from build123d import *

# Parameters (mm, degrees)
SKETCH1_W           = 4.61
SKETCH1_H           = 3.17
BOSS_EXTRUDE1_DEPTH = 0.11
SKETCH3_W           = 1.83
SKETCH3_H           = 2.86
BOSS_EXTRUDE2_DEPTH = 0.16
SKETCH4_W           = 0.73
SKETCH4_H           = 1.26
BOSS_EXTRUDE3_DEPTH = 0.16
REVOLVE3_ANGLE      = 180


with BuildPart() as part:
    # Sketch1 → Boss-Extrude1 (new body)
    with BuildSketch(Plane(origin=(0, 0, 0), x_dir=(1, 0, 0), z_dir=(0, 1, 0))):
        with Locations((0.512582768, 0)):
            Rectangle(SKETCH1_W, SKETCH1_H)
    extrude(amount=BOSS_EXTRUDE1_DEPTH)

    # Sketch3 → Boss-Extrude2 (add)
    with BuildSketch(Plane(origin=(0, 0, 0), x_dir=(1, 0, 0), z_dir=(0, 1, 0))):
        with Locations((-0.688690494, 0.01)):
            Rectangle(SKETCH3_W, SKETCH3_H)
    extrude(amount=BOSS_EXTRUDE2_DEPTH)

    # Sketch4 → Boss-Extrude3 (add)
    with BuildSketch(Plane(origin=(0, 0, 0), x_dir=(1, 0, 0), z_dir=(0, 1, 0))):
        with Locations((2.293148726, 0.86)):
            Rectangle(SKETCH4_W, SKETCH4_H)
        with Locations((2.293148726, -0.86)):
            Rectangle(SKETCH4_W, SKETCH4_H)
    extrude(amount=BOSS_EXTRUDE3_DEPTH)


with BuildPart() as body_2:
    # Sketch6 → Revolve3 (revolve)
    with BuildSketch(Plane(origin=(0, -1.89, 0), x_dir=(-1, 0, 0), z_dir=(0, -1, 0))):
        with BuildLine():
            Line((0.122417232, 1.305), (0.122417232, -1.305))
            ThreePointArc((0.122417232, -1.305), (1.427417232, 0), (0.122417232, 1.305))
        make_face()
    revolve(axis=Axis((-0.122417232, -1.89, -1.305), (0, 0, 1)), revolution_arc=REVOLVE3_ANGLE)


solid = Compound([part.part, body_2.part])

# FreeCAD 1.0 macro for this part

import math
import FreeCAD as App
import Part
import Sketcher
Q = App.Units.Quantity

doc = App.newDocument("Part")
body = doc.addObject("PartDesign::Body", "Body")

# Sketch on XZ plane
sketch1 = body.newObject("Sketcher::SketchObject", "Sketch")
sketch1.AttachmentSupport = (doc.getObject("XZ_Plane"), [""])
sketch1.MapMode = "FlatFace"
sketch1.addGeometry(Part.LineSegment(App.Vector(-1.792417, -1.585, 0), App.Vector(-1.792417, 1.585, 0)), False)
sketch1.addGeometry(Part.LineSegment(App.Vector(-1.792417, 1.585, 0), App.Vector(2.817583, 1.585, 0)), False)
sketch1.addGeometry(Part.LineSegment(App.Vector(2.817583, 1.585, 0), App.Vector(2.817583, -1.585, 0)), False)
sketch1.addGeometry(Part.LineSegment(App.Vector(2.817583, -1.585, 0), App.Vector(-1.792417, -1.585, 0)), False)
sketch1.addConstraint(Sketcher.Constraint("Coincident", 0, 2, 1, 1))
sketch1.addConstraint(Sketcher.Constraint("Coincident", 1, 2, 2, 1))
sketch1.addConstraint(Sketcher.Constraint("Coincident", 2, 2, 3, 1))
sketch1.addConstraint(Sketcher.Constraint("Coincident", 3, 2, 0, 1))
sketch1.addConstraint(Sketcher.Constraint("Vertical", 0))
sketch1.addConstraint(Sketcher.Constraint("Horizontal", 1))
sketch1.addConstraint(Sketcher.Constraint("Vertical", 2))
sketch1.addConstraint(Sketcher.Constraint("Horizontal", 3))
sketch1.addConstraint(Sketcher.Constraint("DistanceX", 1, 1, 1, 2, Q("4.61 mm")))
sketch1.addConstraint(Sketcher.Constraint("DistanceY", 0, 1, 0, 2, Q("3.17 mm")))
sketch1.addConstraint(Sketcher.Constraint("DistanceY", -1, 1, 0, 2, Q("1.585 mm")))
sketch1.addConstraint(Sketcher.Constraint("DistanceX", 0, 2, -1, 1, Q("1.792417 mm")))
pad1 = body.newObject("PartDesign::Pad", "Pad")
pad1.Profile = sketch1
pad1.Length = 0.11
pad1.Reversed = True

# Sketch on XZ plane
sketch2 = body.newObject("Sketcher::SketchObject", "Sketch001")
sketch2.AttachmentSupport = (doc.getObject("XZ_Plane"), [""])
sketch2.MapMode = "FlatFace"
sketch2.addGeometry(Part.LineSegment(App.Vector(-1.60369, -1.44, 0), App.Vector(-1.60369, 1.42, 0)), False)
sketch2.addGeometry(Part.LineSegment(App.Vector(-1.60369, 1.42, 0), App.Vector(0.22631, 1.42, 0)), False)
sketch2.addGeometry(Part.LineSegment(App.Vector(0.22631, 1.42, 0), App.Vector(0.22631, -1.44, 0)), False)
sketch2.addGeometry(Part.LineSegment(App.Vector(0.22631, -1.44, 0), App.Vector(-1.60369, -1.44, 0)), False)
sketch2.addConstraint(Sketcher.Constraint("Coincident", 0, 2, 1, 1))
sketch2.addConstraint(Sketcher.Constraint("Coincident", 1, 2, 2, 1))
sketch2.addConstraint(Sketcher.Constraint("Coincident", 2, 2, 3, 1))
sketch2.addConstraint(Sketcher.Constraint("Coincident", 3, 2, 0, 1))
sketch2.addConstraint(Sketcher.Constraint("Vertical", 0))
sketch2.addConstraint(Sketcher.Constraint("Horizontal", 1))
sketch2.addConstraint(Sketcher.Constraint("Vertical", 2))
sketch2.addConstraint(Sketcher.Constraint("Horizontal", 3))
sketch2.addConstraint(Sketcher.Constraint("DistanceX", 1, 1, 1, 2, Q("1.83 mm")))
sketch2.addConstraint(Sketcher.Constraint("DistanceY", 0, 1, 0, 2, Q("2.86 mm")))
sketch2.addConstraint(Sketcher.Constraint("DistanceY", -1, 1, 0, 2, Q("1.42 mm")))
sketch2.addConstraint(Sketcher.Constraint("DistanceX", 0, 2, -1, 1, Q("1.60369 mm")))
pad2 = body.newObject("PartDesign::Pad", "Pad001")
pad2.Profile = sketch2
pad2.Length = 0.16
pad2.Reversed = True

# Sketch on XZ plane
sketch3 = body.newObject("Sketcher::SketchObject", "Sketch002")
sketch3.AttachmentSupport = (doc.getObject("XZ_Plane"), [""])
sketch3.MapMode = "FlatFace"
sketch3.addGeometry(Part.LineSegment(App.Vector(1.928149, -1.49, 0), App.Vector(1.928149, -0.23, 0)), False)
sketch3.addGeometry(Part.LineSegment(App.Vector(1.928149, -0.23, 0), App.Vector(2.658149, -0.23, 0)), False)
sketch3.addGeometry(Part.LineSegment(App.Vector(2.658149, -0.23, 0), App.Vector(2.658149, -1.49, 0)), False)
sketch3.addGeometry(Part.LineSegment(App.Vector(2.658149, -1.49, 0), App.Vector(1.928149, -1.49, 0)), False)
sketch3.addGeometry(Part.LineSegment(App.Vector(1.928149, 0.23, 0), App.Vector(1.928149, 1.49, 0)), False)
sketch3.addGeometry(Part.LineSegment(App.Vector(1.928149, 1.49, 0), App.Vector(2.658149, 1.49, 0)), False)
sketch3.addGeometry(Part.LineSegment(App.Vector(2.658149, 1.49, 0), App.Vector(2.658149, 0.23, 0)), False)
sketch3.addGeometry(Part.LineSegment(App.Vector(2.658149, 0.23, 0), App.Vector(1.928149, 0.23, 0)), False)
sketch3.addConstraint(Sketcher.Constraint("Coincident", 0, 2, 1, 1))
sketch3.addConstraint(Sketcher.Constraint("Coincident", 1, 2, 2, 1))
sketch3.addConstraint(Sketcher.Constraint("Coincident", 2, 2, 3, 1))
sketch3.addConstraint(Sketcher.Constraint("Coincident", 3, 2, 0, 1))
sketch3.addConstraint(Sketcher.Constraint("Coincident", 4, 2, 5, 1))
sketch3.addConstraint(Sketcher.Constraint("Coincident", 5, 2, 6, 1))
sketch3.addConstraint(Sketcher.Constraint("Coincident", 6, 2, 7, 1))
sketch3.addConstraint(Sketcher.Constraint("Coincident", 7, 2, 4, 1))
sketch3.addConstraint(Sketcher.Constraint("Vertical", 0))
sketch3.addConstraint(Sketcher.Constraint("Horizontal", 1))
sketch3.addConstraint(Sketcher.Constraint("Vertical", 2))
sketch3.addConstraint(Sketcher.Constraint("Horizontal", 3))
sketch3.addConstraint(Sketcher.Constraint("Vertical", 4))
sketch3.addConstraint(Sketcher.Constraint("Horizontal", 5))
sketch3.addConstraint(Sketcher.Constraint("Vertical", 6))
sketch3.addConstraint(Sketcher.Constraint("Horizontal", 7))
sketch3.addConstraint(Sketcher.Constraint("Symmetric", 3, 2, 4, 2, -1))
sketch3.addConstraint(Sketcher.Constraint("Symmetric", 1, 2, 6, 2, -1))
sketch3.addConstraint(Sketcher.Constraint("DistanceX", 1, 1, 1, 2, Q("0.73 mm")))
sketch3.addConstraint(Sketcher.Constraint("DistanceY", 0, 1, 0, 2, Q("1.26 mm")))
sketch3.addConstraint(Sketcher.Constraint("DistanceY", 0, 2, -1, 1, Q("0.23 mm")))
sketch3.addConstraint(Sketcher.Constraint("DistanceX", -1, 1, 0, 2, Q("1.928149 mm")))
pad3 = body.newObject("PartDesign::Pad", "Pad002")
pad3.Profile = sketch3
pad3.Length = 0.16
pad3.Reversed = True
body2 = doc.addObject("PartDesign::Body", "Body001")

# Sketch on XZ plane
sketch4 = body2.newObject("Sketcher::SketchObject", "Sketch003")
sketch4.AttachmentSupport = (doc.getObject("XZ_Plane001"), [""])
sketch4.MapMode = "FlatFace"
sketch4.AttachmentOffset = App.Placement(App.Vector(0, 0, 1.89), App.Rotation())
sketch4.addGeometry(Part.LineSegment(App.Vector(-0.122417, -1.305, 0), App.Vector(-0.122417, 1.305, 0)), False)
sketch4.addGeometry(Part.ArcOfCircle(Part.Circle(App.Vector(-0.122417, 0, 0), App.Vector(0, 0, 1), 1.305), math.radians(90), math.radians(270)), False)
sketch4.addGeometry(Part.LineSegment(App.Vector(-0.122417, -1.305, 0), App.Vector(-0.122417, 1.305, 0)), True)  # axis
sketch4.addConstraint(Sketcher.Constraint("Coincident", 0, 1, 1, 2))
sketch4.addConstraint(Sketcher.Constraint("Coincident", 1, 1, 0, 2))
sketch4.addConstraint(Sketcher.Constraint("Vertical", 0))
sketch4.addConstraint(Sketcher.Constraint("Vertical", 2))
sketch4.addConstraint(Sketcher.Constraint("Coincident", 2, 1, 0, 1))
sketch4.addConstraint(Sketcher.Constraint("PointOnObject", 1, 3, -1))
sketch4.addConstraint(Sketcher.Constraint("Vertical", 1, 3, 0, 1))
sketch4.addConstraint(Sketcher.Constraint("Equal", 0, 2))
sketch4.addConstraint(Sketcher.Constraint("Radius", 1, Q("1.305 mm")))
sketch4.addConstraint(Sketcher.Constraint("DistanceX", 1, 3, -1, 1, Q("0.122417 mm")))
revolution = body2.newObject("PartDesign::Revolution", "Revolution")
revolution.Profile = sketch4
revolution.ReferenceAxis = (sketch4, ["Axis0"])
revolution.Angle = 180

doc.recompute()
